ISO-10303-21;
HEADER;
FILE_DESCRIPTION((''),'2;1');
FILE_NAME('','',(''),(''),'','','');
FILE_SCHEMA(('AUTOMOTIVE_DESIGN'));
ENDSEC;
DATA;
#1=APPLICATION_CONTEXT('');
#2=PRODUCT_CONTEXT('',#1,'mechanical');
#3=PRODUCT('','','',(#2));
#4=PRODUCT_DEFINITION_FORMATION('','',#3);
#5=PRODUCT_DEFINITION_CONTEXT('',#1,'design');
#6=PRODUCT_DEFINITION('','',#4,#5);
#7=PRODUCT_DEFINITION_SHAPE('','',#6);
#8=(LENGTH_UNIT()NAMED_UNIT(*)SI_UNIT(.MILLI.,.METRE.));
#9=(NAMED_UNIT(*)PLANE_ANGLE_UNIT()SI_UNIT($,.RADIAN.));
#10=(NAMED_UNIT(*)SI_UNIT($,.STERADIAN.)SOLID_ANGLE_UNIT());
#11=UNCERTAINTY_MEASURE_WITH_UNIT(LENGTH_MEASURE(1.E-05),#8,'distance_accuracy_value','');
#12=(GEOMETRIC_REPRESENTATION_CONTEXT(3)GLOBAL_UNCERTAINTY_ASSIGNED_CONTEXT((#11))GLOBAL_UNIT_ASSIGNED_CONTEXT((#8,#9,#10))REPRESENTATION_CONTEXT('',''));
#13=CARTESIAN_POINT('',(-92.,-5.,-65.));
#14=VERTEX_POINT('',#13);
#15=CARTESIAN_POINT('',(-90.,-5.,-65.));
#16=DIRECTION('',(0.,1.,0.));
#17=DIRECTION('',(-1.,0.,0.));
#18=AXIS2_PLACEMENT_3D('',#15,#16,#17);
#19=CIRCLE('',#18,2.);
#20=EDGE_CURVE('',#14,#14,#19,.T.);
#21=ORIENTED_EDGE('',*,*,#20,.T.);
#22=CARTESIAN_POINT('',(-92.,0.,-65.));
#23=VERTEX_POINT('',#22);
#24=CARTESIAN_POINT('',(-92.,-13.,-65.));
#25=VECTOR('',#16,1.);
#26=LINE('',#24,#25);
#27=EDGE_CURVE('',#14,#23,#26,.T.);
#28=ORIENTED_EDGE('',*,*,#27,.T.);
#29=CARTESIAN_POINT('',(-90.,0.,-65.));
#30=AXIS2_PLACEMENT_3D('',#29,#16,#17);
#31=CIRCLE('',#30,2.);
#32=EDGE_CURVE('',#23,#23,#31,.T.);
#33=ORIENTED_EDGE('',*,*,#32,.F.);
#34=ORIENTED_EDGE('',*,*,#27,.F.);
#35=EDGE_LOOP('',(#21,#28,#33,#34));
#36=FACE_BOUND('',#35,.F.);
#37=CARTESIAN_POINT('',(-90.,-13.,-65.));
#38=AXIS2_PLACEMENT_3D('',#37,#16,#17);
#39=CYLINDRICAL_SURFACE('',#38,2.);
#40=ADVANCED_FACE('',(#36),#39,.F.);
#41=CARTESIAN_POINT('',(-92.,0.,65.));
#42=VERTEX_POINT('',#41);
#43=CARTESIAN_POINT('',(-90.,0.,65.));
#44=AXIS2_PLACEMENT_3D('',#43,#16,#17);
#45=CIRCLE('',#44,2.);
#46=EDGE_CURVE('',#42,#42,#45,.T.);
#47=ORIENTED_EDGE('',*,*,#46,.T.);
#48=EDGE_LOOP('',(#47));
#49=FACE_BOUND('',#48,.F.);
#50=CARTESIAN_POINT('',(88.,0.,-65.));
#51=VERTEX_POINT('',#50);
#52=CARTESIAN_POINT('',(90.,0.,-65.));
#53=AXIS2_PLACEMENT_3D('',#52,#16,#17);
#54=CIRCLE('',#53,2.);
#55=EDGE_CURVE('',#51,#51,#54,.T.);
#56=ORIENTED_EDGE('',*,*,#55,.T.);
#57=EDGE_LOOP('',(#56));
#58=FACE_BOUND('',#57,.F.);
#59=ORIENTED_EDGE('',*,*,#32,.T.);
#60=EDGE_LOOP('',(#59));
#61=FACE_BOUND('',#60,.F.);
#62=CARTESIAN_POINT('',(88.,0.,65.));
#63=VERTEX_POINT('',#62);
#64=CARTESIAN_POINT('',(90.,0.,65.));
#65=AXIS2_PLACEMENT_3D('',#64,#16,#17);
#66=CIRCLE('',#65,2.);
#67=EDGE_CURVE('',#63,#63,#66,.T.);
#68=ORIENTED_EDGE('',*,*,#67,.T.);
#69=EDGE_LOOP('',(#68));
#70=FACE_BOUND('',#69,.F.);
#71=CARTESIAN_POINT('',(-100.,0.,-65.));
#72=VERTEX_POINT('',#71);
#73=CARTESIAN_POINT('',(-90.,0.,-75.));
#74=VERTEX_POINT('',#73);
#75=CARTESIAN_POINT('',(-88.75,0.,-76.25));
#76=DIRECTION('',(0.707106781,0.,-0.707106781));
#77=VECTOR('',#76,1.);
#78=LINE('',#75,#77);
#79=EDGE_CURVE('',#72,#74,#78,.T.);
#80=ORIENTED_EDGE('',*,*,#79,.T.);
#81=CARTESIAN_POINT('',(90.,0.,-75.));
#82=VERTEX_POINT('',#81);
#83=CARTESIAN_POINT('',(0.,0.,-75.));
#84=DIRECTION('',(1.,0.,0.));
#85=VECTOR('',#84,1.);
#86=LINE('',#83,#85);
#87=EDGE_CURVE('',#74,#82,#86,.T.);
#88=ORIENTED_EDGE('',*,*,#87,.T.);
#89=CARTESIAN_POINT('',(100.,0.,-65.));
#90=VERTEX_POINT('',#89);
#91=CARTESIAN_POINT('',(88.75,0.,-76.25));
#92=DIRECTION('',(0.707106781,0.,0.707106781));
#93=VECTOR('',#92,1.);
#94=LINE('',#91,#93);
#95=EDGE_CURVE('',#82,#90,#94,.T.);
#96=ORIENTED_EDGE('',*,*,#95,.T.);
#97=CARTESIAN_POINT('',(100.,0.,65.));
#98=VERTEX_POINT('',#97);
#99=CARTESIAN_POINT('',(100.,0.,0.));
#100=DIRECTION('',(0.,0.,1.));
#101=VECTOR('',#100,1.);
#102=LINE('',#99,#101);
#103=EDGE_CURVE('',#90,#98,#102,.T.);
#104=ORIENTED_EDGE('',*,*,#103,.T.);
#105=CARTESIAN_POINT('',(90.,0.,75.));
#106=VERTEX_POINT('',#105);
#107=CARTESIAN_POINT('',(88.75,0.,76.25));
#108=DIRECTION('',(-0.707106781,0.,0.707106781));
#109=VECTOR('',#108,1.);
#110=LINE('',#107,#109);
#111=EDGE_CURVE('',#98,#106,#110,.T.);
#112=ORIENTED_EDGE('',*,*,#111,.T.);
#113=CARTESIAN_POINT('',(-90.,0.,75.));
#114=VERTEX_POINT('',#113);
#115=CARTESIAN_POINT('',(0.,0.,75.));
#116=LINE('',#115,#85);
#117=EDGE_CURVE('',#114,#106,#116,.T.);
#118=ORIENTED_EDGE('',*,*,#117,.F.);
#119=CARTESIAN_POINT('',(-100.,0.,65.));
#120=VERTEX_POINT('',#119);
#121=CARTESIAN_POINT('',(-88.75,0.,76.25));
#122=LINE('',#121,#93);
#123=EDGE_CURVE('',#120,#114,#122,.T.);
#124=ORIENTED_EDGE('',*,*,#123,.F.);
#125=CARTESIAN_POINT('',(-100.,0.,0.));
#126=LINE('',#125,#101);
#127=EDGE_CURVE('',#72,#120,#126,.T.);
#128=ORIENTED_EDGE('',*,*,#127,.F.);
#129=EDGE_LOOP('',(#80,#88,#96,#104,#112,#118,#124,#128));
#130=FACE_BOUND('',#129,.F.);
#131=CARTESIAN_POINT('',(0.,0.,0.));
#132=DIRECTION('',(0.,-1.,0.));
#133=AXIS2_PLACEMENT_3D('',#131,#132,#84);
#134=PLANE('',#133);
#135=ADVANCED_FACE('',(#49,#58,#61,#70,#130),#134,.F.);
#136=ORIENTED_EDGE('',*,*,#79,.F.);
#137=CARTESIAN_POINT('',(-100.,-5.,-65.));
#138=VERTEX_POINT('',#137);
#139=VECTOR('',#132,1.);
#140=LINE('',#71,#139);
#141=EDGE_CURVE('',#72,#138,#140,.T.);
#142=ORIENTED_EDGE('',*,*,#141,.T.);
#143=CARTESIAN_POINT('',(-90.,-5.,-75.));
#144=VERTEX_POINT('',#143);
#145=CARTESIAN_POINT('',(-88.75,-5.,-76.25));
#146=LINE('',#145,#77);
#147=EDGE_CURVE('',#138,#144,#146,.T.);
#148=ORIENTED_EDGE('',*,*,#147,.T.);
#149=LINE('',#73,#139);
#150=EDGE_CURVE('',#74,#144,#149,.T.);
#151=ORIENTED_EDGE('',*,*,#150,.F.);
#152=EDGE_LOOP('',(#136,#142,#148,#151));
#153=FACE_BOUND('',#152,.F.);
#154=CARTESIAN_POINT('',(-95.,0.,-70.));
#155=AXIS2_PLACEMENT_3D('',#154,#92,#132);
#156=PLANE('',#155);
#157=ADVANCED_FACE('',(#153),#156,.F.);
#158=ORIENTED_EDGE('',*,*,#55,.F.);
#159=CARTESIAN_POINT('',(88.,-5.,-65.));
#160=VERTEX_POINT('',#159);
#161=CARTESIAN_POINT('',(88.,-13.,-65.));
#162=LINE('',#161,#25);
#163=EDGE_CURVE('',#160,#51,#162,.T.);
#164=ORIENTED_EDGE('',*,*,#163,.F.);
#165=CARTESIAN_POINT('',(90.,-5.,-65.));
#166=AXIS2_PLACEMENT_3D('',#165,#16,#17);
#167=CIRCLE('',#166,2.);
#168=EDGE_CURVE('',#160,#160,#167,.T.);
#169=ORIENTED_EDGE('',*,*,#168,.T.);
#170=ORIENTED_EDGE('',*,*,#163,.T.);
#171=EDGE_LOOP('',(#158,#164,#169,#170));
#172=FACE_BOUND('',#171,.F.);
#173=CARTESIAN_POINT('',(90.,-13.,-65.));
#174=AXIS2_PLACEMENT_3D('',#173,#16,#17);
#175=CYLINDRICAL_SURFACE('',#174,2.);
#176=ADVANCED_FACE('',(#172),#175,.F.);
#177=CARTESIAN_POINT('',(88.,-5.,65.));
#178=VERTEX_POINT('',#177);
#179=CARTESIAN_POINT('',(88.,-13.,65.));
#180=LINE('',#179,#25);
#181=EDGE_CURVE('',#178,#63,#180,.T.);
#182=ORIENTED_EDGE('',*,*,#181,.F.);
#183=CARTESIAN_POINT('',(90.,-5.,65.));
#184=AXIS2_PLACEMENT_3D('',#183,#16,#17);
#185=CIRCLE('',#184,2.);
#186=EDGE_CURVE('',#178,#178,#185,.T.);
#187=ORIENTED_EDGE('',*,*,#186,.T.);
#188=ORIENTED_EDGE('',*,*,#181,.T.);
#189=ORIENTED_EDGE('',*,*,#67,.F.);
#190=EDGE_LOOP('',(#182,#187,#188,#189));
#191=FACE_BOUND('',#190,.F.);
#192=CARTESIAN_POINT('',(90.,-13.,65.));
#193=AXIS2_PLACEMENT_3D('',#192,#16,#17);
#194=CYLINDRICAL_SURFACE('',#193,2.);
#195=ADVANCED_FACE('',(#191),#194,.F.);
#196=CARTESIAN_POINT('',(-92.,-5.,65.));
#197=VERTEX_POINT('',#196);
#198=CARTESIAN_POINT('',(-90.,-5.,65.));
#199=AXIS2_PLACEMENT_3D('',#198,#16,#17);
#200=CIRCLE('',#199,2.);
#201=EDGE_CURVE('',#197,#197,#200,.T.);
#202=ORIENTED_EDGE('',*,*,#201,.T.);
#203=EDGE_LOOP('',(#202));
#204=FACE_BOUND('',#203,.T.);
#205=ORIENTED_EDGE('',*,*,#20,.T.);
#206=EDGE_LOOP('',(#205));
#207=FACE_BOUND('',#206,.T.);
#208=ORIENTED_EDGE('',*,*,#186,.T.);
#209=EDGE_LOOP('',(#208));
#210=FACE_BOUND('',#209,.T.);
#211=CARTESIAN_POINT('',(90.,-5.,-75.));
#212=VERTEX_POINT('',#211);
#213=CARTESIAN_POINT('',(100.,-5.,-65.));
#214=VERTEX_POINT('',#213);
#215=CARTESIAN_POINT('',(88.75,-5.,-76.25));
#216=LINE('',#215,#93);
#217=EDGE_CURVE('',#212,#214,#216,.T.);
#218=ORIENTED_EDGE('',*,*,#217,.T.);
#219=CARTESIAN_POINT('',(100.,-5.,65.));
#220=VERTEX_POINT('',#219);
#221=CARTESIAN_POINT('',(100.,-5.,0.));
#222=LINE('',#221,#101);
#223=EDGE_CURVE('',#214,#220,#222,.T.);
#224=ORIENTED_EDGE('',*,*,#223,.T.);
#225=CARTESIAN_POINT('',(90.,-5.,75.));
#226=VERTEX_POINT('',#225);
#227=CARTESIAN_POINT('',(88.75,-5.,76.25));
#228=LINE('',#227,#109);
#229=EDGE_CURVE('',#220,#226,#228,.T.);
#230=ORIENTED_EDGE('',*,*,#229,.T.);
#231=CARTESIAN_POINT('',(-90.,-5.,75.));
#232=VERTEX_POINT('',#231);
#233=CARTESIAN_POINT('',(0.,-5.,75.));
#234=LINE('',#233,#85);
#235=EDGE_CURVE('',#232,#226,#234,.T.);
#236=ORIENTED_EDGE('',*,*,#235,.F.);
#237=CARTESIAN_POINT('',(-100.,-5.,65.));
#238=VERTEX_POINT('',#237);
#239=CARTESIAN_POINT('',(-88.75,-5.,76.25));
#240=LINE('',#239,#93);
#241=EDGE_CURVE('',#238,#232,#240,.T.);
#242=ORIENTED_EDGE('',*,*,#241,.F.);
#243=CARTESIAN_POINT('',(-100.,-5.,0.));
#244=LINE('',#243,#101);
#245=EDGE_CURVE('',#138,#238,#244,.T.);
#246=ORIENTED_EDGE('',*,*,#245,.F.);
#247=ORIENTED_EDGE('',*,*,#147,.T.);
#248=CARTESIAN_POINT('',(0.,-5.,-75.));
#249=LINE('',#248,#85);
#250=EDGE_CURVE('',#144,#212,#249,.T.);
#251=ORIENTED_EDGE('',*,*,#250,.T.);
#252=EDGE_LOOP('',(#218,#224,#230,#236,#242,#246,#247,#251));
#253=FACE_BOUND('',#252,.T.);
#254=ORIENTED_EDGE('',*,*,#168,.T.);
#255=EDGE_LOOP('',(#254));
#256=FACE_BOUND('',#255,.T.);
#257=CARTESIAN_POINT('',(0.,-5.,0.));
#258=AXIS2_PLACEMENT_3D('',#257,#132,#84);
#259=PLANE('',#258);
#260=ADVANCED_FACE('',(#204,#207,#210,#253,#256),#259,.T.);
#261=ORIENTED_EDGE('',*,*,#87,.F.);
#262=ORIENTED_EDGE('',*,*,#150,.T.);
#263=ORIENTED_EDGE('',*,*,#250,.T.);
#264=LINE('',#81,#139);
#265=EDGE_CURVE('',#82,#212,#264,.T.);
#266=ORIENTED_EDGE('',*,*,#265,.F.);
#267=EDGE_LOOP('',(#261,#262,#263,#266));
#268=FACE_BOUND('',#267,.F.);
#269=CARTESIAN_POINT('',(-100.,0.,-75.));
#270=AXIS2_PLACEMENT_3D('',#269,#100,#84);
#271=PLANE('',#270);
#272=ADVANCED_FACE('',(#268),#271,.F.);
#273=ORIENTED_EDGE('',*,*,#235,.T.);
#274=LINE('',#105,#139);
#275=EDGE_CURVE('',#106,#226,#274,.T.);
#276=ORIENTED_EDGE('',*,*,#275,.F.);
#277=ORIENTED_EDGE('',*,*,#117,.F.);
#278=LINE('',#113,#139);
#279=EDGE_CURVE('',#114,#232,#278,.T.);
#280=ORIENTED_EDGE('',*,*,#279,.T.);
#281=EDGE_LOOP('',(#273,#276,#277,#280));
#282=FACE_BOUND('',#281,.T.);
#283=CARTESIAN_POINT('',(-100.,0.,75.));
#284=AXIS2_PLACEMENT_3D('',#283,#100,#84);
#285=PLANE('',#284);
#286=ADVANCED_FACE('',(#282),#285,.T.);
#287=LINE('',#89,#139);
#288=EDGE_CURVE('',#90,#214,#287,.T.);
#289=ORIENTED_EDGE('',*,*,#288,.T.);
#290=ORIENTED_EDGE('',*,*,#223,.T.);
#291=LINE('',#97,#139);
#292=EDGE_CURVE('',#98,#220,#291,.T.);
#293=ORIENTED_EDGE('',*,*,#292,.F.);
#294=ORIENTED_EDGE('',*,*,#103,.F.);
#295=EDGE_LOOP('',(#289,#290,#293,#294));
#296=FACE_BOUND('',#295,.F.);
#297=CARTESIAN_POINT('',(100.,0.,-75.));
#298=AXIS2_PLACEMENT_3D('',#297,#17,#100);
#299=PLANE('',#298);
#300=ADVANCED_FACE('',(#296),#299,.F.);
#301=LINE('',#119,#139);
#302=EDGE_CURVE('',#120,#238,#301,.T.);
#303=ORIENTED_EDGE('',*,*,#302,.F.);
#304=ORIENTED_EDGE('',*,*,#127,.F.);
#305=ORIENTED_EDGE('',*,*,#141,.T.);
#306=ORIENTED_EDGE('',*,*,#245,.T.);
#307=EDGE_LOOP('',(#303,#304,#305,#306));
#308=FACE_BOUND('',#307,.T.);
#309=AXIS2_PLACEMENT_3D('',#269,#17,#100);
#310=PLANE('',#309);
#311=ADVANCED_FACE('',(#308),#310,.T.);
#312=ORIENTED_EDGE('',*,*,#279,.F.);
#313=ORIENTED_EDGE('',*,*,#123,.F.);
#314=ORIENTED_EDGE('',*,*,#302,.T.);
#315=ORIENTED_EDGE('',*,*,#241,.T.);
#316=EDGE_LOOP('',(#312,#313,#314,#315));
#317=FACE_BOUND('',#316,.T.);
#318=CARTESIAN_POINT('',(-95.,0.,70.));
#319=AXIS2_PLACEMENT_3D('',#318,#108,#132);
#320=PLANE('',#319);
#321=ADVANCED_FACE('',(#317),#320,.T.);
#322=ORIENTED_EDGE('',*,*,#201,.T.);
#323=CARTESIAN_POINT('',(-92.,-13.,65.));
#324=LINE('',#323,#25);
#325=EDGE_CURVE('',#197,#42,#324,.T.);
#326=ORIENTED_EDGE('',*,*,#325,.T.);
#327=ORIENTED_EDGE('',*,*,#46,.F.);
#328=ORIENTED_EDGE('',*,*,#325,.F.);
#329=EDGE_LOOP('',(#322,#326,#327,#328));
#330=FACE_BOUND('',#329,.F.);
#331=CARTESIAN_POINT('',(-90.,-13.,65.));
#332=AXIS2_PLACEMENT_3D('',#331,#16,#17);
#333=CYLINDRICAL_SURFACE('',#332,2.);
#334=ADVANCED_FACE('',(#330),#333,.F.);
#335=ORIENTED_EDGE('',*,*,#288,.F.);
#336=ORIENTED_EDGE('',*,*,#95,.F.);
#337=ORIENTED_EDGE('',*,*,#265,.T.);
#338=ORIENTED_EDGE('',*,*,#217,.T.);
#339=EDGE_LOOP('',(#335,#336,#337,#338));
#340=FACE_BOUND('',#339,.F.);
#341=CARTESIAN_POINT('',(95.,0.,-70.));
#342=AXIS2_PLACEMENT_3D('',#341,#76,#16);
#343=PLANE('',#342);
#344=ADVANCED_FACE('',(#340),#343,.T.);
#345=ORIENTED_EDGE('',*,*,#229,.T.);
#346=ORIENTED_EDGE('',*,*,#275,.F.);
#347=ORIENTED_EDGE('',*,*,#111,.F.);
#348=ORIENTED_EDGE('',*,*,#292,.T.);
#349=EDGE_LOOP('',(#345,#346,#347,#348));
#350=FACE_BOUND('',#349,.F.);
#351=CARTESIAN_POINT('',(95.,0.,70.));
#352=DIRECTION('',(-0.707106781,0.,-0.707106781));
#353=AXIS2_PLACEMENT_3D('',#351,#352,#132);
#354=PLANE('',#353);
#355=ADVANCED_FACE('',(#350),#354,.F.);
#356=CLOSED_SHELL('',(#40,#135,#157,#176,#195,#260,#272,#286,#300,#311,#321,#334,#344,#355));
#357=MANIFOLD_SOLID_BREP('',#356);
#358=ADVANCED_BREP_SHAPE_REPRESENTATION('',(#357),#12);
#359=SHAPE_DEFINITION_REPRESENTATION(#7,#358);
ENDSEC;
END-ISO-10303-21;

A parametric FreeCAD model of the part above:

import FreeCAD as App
import Part
import Sketcher
from FreeCAD import Vector
Q = App.Units.Quantity


def edges_at(feature, points):
    """Names of the edges that pass closest to the given points."""
    edges = feature.Shape.Edges
    near = lambda p: min(range(len(edges)), key=lambda i: edges[i].distToShape(Part.Vertex(*p))[0])
    return sorted({f"Edge{near(p) + 1}" for p in points})


def add_polygon(sketch, points):
    """Adds a closed chain of lines whose ends are joined by coincident constraints."""
    first, n = sketch.GeometryCount, len(points)
    for a, b in zip(points, points[1:] + points[:1]):
        sketch.addGeometry(Part.LineSegment(App.Vector(*a, 0), App.Vector(*b, 0)), False)
    for i in range(n):
        sketch.addConstraint(Sketcher.Constraint("Coincident", first + i, 2, first + (i + 1) % n, 1))

doc = App.newDocument("Part")
body = doc.addObject("PartDesign::Body", "Body")

# Sketch on XZ plane
sketch1 = body.newObject("Sketcher::SketchObject", "Sketch")
sketch1.AttachmentSupport = (doc.getObject("XZ_Plane"), [""])
sketch1.MapMode = "FlatFace"
add_polygon(sketch1, [(-100, 75), (-100, -75), (100, -75), (100, 75)])  # lines 0-3
sketch1.addConstraint([
    Sketcher.Constraint("Vertical", 0),
    Sketcher.Constraint("Horizontal", 1),
    Sketcher.Constraint("Vertical", 2),
    Sketcher.Constraint("Horizontal", 3),
    Sketcher.Constraint("Symmetric", 0, 2, 2, 2, -1, 1),
    Sketcher.Constraint("DistanceX", 1, 1, 1, 2, Q("200 mm")),
    Sketcher.Constraint("DistanceY", 0, 2, 0, 1, Q("150 mm")),
])
pad1 = body.newObject("PartDesign::Pad", "Pad")
pad1.Profile = sketch1
pad1.Length = 5
doc.recompute()

chamfer = body.newObject("PartDesign::Chamfer", "Chamfer")
chamfer.Base = (pad1, edges_at(pad1, [
    (-100, -2.5, 75),
    (100, -2.5, 75),
    (-100, -2.5, -75),
    (100, -2.5, -75),
]))
chamfer.Size = 10

# Sketch on XZ plane
sketch2 = body.newObject("Sketcher::SketchObject", "Sketch001")
sketch2.AttachmentSupport = (doc.getObject("XZ_Plane"), [""])
sketch2.MapMode = "FlatFace"
sketch2.AttachmentOffset = App.Placement(Vector(0, 0, 5), App.Rotation())
sketch2.addGeometry([
    Part.Circle(Vector(90, -65, 0), Vector(0, 0, 1), 2),
    Part.Circle(Vector(-90, -65, 0), Vector(0, 0, 1), 2),
    Part.Circle(Vector(-90, 65, 0), Vector(0, 0, 1), 2),
    Part.Circle(Vector(90, 65, 0), Vector(0, 0, 1), 2),
], False)
sketch2.addConstraint([
    Sketcher.Constraint("Equal", 0, 1),
    Sketcher.Constraint("Equal", 1, 2),
    Sketcher.Constraint("Equal", 2, 3),
    Sketcher.Constraint("Symmetric", 0, 3, 2, 3, -1, 1),
    Sketcher.Constraint("Symmetric", 1, 3, 3, 3, -1, 1),
    Sketcher.Constraint("Symmetric", 0, 3, 1, 3, -2),
    Sketcher.Constraint("Diameter", 0, Q("4 mm")),
    Sketcher.Constraint("DistanceX", -1, 1, 0, 3, Q("90 mm")),
    Sketcher.Constraint("DistanceY", 0, 3, -1, 1, Q("65 mm")),
])
doc.recompute()
hole = body.newObject("PartDesign::Hole", "Hole")
hole.Profile = sketch2
hole.ThreadType = "None"
hole.Diameter = 4
hole.DepthType = "Dimension"
hole.Depth = 8
hole.DrillPoint = "Flat"

doc.recompute()
